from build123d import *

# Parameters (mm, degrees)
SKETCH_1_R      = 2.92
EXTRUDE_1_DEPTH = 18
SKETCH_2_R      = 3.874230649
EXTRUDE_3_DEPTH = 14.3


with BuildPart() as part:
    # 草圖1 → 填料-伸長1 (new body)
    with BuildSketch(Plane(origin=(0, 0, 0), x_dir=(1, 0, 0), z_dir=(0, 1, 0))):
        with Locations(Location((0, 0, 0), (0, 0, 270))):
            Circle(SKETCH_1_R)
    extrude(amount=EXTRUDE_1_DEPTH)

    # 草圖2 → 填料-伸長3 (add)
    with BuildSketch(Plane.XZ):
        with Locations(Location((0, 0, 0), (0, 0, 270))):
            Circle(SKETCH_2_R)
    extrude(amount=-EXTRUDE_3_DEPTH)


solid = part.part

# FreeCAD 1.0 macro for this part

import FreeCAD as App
import Part
import Sketcher

V = App.Vector
Q = App.Units.Quantity

doc = App.newDocument("Part")
body = doc.addObject("PartDesign::Body", "Body")

# Sketch on XZ plane
sketch1 = body.newObject("Sketcher::SketchObject", "Sketch")
sketch1.AttachmentSupport = (doc.getObject("XZ_Plane"), [""])
sketch1.MapMode = "FlatFace"
sketch1.addGeometry(Part.Circle(V(0, 0, 0), V(0, 0, 1), 2.92), False)
sketch1.addConstraint([
    Sketcher.Constraint("Coincident", 0, 3, -1, 1),
    Sketcher.Constraint("Diameter", 0, Q("5.84 mm")),
])
pad1 = body.newObject("PartDesign::Pad", "Pad")
pad1.Profile = sketch1
pad1.Length = 18
pad1.Reversed = True

# Sketch on XZ plane
sketch2 = body.newObject("Sketcher::SketchObject", "Sketch001")
sketch2.AttachmentSupport = (doc.getObject("XZ_Plane"), [""])
sketch2.MapMode = "FlatFace"
sketch2.addGeometry(Part.Circle(V(0, 0, 0), V(0, 0, 1), 3.874231), False)
sketch2.addConstraint([
    Sketcher.Constraint("Coincident", 0, 3, -1, 1),
    Sketcher.Constraint("Diameter", 0, Q("7.748461 mm")),
])
pad2 = body.newObject("PartDesign::Pad", "Pad001")
pad2.Profile = sketch2
pad2.Length = 14.3
pad2.Reversed = True

doc.recompute()
